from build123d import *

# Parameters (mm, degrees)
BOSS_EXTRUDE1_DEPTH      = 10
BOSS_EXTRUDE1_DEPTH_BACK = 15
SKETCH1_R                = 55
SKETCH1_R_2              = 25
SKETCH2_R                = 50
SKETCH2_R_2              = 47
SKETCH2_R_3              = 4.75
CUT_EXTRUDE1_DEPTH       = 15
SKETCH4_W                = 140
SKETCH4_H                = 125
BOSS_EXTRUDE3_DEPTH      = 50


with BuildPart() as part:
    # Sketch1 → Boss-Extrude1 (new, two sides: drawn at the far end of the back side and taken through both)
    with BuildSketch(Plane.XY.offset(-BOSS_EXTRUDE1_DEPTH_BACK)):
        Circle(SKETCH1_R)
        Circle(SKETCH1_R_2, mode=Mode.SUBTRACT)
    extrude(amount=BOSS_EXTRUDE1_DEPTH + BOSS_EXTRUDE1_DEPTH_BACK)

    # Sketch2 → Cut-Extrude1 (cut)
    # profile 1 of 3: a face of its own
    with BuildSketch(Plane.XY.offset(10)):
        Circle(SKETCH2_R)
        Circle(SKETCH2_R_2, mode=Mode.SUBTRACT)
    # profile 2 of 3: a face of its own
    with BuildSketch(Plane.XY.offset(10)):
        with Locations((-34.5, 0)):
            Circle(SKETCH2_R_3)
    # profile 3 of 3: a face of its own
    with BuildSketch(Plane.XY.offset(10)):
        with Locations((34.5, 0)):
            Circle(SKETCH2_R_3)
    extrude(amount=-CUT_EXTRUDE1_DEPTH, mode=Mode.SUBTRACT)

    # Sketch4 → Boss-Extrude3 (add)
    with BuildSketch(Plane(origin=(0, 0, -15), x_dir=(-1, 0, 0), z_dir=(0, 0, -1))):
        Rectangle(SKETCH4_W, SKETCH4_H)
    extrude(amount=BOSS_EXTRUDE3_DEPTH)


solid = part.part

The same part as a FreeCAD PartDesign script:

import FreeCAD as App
import Part
import Sketcher

V = App.Vector


def add_polygon(sketch, points):
    """Adds a closed chain of lines whose ends are joined by coincident constraints."""
    first, n = sketch.GeometryCount, len(points)
    for a, b in zip(points, points[1:] + points[:1]):
        sketch.addGeometry(Part.LineSegment(App.Vector(*a, 0), App.Vector(*b, 0)), False)
    for i in range(n):
        sketch.addConstraint(Sketcher.Constraint("Coincident", first + i, 2, first + (i + 1) % n, 1))

doc = App.newDocument("Part")
body = doc.addObject("PartDesign::Body", "Body")

# Sketch on XY plane
sketch1 = doc.addObject("Sketcher::SketchObject", "Sketch")
body.addObject(sketch1)
sketch1.AttachmentSupport = (doc.XY_Plane, [""])
sketch1.MapMode = "FlatFace"
sketch1.addGeometry([
    Part.Circle(V(0, 0, 0), V(0, 0, 1), 55),
    Part.Circle(V(0, 0, 0), V(0, 0, 1), 25),
], False)
sketch1.addConstraint([
    Sketcher.Constraint("Coincident", 0, 3, -1, 1),
    Sketcher.Constraint("Coincident", 1, 3, -1, 1),
    Sketcher.Constraint("Diameter", 0, 110.0),
    Sketcher.Constraint("Diameter", 1, 50.0),
])
pad1 = doc.addObject("PartDesign::Pad", "Pad")
body.addObject(pad1)
pad1.Profile = sketch1
pad1.Type = "TwoLengths"
pad1.Length = 10
pad1.Length2 = 15

# Sketch on XY plane
sketch2 = doc.addObject("Sketcher::SketchObject", "Sketch001")
body.addObject(sketch2)
sketch2.AttachmentSupport = (doc.XY_Plane, [""])
sketch2.MapMode = "FlatFace"
sketch2.AttachmentOffset = App.Placement(V(0, 0, 10), App.Rotation())
sketch2.addGeometry([
    Part.Circle(V(0, 0, 0), V(0, 0, 1), 50),
    Part.Circle(V(0, 0, 0), V(0, 0, 1), 47),
    Part.Circle(V(-34.5, 0, 0), V(0, 0, 1), 4.8),
    Part.Circle(V(34.5, 0, 0), V(0, 0, 1), 4.8),
], False)
sketch2.addConstraint([
    Sketcher.Constraint("Coincident", 0, 3, -1, 1),
    Sketcher.Constraint("Coincident", 1, 3, -1, 1),
    Sketcher.Constraint("Equal", 2, 3),
    Sketcher.Constraint("Symmetric", 2, 3, 3, 3, -1, 1),
    Sketcher.Constraint("PointOnObject", 2, 3, -1),
    Sketcher.Constraint("Diameter", 0, 100.0),
    Sketcher.Constraint("Diameter", 1, 94.0),
    Sketcher.Constraint("Diameter", 2, 9.5),
    Sketcher.Constraint("DistanceX", 2, 3, 3, 3, 69.0),
])
pocket1 = doc.addObject("PartDesign::Pocket", "Pocket")
body.addObject(pocket1)
pocket1.Profile = sketch2
pocket1.Length = 15

# Sketch on XY plane
sketch3 = doc.addObject("Sketcher::SketchObject", "Sketch002")
body.addObject(sketch3)
sketch3.AttachmentSupport = (doc.XY_Plane, [""])
sketch3.MapMode = "FlatFace"
sketch3.AttachmentOffset = App.Placement(V(0, 0, -15), App.Rotation())
add_polygon(sketch3, [(70, 62), (70, -62), (-70, -62), (-70, 62)])  # lines 0-3
sketch3.addConstraint([
    Sketcher.Constraint("Vertical", 0),
    Sketcher.Constraint("Horizontal", 1),
    Sketcher.Constraint("Vertical", 2),
    Sketcher.Constraint("Horizontal", 3),
    Sketcher.Constraint("Symmetric", 0, 2, 2, 2, -1, 1),
    Sketcher.Constraint("DistanceX", 1, 2, 1, 1, 140.0),
    Sketcher.Constraint("DistanceY", 0, 2, 0, 1, 125.0),
])
pad2 = doc.addObject("PartDesign::Pad", "Pad001")
body.addObject(pad2)
pad2.Profile = sketch3
pad2.Length = 50
pad2.Reversed = True

doc.recompute()
